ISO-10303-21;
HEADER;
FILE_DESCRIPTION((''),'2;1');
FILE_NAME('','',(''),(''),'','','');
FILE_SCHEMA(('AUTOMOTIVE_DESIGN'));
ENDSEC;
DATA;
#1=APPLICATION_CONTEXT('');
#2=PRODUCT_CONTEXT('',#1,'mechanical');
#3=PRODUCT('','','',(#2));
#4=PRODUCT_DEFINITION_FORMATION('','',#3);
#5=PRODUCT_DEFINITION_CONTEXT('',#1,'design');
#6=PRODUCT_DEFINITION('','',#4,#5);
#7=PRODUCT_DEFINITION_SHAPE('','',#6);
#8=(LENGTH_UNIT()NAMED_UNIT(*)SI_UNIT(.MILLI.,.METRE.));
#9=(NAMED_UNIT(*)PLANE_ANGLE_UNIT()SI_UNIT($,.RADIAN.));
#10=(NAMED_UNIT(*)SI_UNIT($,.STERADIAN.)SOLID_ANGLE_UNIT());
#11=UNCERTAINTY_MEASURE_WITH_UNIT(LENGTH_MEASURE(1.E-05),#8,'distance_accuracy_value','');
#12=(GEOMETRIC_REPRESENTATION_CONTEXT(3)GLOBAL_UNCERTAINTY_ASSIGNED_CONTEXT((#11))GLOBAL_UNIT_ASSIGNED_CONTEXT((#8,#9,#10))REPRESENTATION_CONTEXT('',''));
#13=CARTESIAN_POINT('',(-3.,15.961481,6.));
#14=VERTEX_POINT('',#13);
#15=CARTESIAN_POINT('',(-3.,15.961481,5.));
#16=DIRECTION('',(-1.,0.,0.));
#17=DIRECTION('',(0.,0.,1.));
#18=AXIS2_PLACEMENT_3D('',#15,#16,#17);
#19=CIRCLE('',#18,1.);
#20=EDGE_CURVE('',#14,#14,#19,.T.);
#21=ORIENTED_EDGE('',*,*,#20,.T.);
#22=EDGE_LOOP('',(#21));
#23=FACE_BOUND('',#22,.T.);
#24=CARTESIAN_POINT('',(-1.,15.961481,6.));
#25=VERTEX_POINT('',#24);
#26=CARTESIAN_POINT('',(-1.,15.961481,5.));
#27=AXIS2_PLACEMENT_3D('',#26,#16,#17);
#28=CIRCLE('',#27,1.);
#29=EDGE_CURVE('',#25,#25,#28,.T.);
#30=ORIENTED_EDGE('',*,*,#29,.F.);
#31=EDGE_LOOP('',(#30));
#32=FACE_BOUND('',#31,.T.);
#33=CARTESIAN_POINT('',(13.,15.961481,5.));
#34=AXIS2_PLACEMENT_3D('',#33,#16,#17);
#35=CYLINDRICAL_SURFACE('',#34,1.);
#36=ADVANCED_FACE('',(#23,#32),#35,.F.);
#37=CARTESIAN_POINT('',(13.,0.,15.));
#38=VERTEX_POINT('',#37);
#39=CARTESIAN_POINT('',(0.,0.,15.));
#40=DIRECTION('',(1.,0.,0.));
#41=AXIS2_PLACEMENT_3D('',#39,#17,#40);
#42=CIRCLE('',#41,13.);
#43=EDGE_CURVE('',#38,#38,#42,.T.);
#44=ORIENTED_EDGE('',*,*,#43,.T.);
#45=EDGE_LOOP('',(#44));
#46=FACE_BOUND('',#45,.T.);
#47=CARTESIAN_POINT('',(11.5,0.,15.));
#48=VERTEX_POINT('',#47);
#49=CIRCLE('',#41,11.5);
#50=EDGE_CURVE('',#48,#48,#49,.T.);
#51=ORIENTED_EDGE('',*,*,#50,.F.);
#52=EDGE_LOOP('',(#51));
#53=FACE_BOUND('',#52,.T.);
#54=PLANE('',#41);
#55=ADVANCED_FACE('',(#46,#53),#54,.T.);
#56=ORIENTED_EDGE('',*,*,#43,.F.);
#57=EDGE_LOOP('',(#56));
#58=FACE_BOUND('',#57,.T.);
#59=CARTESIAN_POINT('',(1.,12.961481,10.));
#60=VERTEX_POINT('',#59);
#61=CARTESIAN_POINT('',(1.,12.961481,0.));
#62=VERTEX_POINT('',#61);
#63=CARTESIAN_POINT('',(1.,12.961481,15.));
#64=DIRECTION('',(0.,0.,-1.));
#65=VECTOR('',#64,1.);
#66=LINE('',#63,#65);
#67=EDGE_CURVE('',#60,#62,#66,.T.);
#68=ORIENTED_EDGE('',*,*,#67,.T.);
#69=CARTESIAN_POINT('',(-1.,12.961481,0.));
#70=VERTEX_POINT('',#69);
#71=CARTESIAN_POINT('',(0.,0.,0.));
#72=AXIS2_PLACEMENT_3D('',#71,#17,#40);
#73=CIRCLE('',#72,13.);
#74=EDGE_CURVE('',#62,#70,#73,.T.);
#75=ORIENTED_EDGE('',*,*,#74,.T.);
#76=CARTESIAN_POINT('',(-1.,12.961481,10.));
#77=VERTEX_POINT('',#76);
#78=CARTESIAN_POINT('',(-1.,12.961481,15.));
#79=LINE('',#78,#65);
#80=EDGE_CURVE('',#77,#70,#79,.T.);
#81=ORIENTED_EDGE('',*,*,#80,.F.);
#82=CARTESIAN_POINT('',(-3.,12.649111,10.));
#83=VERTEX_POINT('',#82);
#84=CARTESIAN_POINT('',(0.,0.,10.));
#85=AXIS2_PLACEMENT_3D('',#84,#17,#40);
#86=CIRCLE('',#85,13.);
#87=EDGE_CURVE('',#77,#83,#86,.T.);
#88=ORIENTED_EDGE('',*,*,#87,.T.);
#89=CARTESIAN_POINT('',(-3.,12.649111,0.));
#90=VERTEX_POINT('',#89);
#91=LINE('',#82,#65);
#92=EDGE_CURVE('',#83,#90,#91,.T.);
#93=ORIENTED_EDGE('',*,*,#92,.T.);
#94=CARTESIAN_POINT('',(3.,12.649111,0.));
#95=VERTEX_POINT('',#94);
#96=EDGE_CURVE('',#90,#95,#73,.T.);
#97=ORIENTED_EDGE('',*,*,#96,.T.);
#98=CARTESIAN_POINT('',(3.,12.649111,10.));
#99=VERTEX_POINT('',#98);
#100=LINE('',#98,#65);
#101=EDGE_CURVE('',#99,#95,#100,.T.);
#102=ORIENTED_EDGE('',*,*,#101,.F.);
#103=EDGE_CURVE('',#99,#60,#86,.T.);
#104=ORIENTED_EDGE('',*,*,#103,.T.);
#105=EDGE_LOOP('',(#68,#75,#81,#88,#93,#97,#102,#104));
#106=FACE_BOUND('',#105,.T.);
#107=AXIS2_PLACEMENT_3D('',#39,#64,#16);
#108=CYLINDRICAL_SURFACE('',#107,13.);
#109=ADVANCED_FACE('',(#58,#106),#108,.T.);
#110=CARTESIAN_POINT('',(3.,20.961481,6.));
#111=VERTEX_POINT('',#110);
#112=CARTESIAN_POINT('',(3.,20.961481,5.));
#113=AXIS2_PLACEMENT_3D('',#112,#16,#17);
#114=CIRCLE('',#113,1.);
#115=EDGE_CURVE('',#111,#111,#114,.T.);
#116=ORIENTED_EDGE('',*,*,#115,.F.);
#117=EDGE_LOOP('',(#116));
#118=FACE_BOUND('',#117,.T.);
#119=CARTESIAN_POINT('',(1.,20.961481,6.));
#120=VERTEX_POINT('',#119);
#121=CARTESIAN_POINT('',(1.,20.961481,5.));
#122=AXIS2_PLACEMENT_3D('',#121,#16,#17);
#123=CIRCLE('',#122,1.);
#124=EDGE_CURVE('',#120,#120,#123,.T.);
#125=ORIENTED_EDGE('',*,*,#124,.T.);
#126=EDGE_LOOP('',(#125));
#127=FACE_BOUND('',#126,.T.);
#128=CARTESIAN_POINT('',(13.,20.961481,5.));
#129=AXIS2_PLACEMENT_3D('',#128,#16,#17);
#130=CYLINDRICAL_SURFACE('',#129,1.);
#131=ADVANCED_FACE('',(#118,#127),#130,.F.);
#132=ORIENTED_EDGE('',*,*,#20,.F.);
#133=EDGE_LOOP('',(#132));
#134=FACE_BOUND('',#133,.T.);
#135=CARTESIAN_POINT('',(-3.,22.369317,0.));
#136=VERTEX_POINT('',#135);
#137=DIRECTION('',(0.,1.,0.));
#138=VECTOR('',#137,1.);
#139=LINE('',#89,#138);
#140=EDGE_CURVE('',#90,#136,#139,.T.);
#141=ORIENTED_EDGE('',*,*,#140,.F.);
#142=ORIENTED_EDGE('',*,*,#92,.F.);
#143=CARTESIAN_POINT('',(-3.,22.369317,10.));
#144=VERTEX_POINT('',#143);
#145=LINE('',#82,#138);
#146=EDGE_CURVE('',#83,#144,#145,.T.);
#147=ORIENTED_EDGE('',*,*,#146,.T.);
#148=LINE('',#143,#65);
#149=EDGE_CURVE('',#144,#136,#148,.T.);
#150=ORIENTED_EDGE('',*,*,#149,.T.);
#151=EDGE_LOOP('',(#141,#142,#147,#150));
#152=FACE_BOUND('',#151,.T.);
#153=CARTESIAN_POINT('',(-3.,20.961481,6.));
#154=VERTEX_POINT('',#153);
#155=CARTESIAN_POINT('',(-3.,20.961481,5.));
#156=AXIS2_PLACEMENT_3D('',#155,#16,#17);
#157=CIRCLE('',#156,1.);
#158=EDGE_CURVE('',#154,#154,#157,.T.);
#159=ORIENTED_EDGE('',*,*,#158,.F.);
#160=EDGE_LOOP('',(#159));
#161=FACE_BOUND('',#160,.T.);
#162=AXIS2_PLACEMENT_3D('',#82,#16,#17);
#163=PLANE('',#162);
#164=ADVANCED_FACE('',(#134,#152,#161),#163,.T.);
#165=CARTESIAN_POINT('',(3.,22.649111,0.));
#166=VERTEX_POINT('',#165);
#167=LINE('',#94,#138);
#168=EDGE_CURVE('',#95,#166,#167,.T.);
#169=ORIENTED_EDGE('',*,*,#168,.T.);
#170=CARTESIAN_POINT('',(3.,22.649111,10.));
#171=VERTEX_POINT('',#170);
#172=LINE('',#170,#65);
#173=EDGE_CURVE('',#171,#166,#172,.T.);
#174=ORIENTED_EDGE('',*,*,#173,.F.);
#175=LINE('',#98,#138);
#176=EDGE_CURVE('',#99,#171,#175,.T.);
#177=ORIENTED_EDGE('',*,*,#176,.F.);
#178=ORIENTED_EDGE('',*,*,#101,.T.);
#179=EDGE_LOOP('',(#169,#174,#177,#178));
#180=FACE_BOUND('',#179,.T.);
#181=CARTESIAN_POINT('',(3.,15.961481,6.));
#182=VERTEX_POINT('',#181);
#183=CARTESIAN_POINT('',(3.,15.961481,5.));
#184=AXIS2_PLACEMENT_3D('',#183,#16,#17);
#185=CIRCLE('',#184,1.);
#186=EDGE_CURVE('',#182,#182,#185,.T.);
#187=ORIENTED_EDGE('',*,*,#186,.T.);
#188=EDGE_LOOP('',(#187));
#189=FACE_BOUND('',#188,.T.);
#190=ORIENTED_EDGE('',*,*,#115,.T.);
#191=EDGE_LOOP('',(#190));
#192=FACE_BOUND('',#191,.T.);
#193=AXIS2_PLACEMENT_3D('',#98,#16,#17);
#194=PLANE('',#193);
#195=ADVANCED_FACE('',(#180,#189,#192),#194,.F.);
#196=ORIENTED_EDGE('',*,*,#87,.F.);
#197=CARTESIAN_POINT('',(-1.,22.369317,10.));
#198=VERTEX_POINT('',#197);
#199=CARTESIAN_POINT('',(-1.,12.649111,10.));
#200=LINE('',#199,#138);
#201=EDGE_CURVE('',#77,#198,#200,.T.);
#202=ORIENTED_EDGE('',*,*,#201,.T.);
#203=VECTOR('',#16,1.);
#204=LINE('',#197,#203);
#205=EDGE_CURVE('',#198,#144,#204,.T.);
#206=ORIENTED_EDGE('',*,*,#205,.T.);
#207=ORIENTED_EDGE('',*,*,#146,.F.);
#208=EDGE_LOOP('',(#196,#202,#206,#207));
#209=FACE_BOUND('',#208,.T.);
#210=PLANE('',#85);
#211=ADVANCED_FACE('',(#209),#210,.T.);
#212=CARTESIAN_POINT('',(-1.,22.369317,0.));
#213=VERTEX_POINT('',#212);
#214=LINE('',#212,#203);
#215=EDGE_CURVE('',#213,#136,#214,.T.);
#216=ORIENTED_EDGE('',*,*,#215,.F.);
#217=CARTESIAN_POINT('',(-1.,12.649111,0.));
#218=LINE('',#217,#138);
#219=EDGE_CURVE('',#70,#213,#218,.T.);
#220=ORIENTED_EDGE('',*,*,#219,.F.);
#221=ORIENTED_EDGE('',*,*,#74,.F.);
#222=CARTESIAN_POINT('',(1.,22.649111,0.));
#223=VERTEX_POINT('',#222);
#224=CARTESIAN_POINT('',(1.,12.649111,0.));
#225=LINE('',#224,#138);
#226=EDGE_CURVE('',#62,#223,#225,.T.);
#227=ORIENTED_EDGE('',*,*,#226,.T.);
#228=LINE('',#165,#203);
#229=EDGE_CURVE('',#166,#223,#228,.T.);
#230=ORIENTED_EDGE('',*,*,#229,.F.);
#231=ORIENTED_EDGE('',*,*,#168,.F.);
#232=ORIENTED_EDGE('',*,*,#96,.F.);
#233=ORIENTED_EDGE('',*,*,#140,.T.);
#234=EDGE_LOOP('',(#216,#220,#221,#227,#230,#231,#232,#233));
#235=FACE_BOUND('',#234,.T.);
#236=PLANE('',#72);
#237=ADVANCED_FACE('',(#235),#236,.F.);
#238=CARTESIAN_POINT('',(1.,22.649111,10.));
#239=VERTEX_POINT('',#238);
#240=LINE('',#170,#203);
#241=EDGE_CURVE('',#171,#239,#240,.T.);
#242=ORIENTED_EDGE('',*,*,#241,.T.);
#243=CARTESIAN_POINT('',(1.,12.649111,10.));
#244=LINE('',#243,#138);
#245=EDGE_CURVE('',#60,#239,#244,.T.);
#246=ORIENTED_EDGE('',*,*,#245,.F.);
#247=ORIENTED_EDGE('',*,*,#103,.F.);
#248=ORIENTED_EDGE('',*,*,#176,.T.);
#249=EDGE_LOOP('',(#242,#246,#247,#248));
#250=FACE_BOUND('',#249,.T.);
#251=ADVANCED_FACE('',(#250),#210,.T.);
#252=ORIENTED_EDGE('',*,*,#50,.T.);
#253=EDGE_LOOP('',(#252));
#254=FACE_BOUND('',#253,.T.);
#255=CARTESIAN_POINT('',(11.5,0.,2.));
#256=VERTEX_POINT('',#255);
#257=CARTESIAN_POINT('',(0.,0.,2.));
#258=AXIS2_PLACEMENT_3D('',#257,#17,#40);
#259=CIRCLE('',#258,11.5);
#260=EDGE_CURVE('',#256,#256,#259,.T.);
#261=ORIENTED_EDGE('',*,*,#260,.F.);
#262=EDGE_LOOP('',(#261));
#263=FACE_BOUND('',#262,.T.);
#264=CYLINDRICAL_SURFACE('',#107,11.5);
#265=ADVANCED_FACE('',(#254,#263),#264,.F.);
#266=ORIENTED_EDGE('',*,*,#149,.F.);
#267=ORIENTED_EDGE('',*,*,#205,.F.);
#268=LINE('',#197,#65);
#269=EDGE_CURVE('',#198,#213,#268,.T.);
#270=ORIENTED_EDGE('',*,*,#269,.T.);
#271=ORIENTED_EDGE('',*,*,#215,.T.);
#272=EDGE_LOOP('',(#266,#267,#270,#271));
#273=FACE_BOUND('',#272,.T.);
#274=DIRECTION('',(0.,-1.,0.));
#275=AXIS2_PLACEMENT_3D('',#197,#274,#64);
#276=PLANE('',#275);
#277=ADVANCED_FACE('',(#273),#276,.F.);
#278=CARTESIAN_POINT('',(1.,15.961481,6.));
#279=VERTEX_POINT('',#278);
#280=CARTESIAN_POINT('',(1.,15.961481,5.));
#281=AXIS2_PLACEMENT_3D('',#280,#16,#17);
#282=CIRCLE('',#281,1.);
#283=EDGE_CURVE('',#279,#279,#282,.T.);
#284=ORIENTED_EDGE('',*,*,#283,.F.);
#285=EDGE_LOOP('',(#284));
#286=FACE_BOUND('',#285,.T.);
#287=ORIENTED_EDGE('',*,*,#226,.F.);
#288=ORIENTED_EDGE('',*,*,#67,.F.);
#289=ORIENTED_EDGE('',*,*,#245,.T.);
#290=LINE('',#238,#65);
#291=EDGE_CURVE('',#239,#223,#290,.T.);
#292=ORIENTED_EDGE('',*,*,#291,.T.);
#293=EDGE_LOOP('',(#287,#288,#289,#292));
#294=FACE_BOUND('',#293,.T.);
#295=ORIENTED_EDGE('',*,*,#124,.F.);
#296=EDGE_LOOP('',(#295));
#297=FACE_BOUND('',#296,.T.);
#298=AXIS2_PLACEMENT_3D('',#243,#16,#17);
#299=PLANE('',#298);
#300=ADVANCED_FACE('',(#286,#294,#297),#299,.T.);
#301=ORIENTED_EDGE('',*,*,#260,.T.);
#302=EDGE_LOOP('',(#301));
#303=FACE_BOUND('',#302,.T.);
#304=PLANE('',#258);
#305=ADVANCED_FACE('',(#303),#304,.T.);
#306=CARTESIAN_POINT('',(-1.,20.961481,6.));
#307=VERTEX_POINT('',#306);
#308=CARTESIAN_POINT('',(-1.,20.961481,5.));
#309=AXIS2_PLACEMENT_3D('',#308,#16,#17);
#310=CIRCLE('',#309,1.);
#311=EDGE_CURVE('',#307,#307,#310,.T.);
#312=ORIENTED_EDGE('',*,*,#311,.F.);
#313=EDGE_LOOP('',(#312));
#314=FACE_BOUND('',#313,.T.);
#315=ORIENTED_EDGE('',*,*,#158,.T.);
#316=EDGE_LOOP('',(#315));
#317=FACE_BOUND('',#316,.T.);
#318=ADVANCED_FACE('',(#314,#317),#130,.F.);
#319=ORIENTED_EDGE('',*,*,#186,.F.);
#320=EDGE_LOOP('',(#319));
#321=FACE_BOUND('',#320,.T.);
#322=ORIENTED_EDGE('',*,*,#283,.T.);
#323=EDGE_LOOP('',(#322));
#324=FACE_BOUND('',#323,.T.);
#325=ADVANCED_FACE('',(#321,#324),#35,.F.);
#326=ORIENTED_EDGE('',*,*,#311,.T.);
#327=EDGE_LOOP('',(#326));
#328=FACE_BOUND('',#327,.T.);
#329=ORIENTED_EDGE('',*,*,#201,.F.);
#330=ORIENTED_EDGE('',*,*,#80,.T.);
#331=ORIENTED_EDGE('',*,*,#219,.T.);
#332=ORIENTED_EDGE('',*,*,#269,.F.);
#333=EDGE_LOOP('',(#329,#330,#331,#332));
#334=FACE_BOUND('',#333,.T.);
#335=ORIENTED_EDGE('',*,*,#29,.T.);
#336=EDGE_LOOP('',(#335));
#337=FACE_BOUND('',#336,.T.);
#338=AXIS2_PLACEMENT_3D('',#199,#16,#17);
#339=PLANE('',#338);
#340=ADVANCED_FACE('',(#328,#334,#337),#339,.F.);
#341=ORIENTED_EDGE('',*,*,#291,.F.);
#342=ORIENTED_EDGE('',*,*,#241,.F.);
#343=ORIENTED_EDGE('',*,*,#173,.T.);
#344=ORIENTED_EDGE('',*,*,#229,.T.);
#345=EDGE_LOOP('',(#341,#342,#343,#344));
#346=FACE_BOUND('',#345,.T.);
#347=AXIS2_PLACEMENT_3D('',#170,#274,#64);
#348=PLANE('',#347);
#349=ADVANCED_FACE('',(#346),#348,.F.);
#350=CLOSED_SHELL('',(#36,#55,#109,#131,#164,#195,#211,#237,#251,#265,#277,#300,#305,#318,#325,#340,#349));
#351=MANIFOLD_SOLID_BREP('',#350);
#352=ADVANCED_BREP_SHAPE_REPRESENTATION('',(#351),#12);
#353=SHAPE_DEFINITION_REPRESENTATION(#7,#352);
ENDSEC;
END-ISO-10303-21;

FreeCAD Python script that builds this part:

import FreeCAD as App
import Part
import Sketcher
Q = App.Units.Quantity

doc = App.newDocument("Part")
body = doc.addObject("PartDesign::Body", "Body")

# Sketch on XY plane
sketch1 = body.newObject("Sketcher::SketchObject", "Sketch")
sketch1.AttachmentSupport = (doc.getObject("XY_Plane"), [""])
sketch1.MapMode = "FlatFace"
sketch1.addGeometry(Part.Circle(App.Vector(0, 0, 0), App.Vector(0, 0, 1), 13), False)
sketch1.addGeometry(Part.Circle(App.Vector(0, 0, 0), App.Vector(0, 0, 1), 12), False)
sketch1.addConstraint(Sketcher.Constraint("Coincident", 0, 3, -1, 1))
sketch1.addConstraint(Sketcher.Constraint("Coincident", 1, 3, -1, 1))
sketch1.addConstraint(Sketcher.Constraint("Diameter", 0, Q("26 mm")))
sketch1.addConstraint(Sketcher.Constraint("Diameter", 1, Q("23 mm")))
pad1 = body.newObject("PartDesign::Pad", "Pad")
pad1.Profile = sketch1
pad1.Length = 15

# Sketch on XY plane
sketch2 = body.newObject("Sketcher::SketchObject", "Sketch001")
sketch2.AttachmentSupport = (doc.getObject("XY_Plane"), [""])
sketch2.MapMode = "FlatFace"
sketch2.addGeometry(Part.Circle(App.Vector(0, 0, 0), App.Vector(0, 0, 1), 13), False)
sketch2.addConstraint(Sketcher.Constraint("Coincident", 0, 3, -1, 1))
sketch2.addConstraint(Sketcher.Constraint("Diameter", 0, Q("26 mm")))
pad2 = body.newObject("PartDesign::Pad", "Pad001")
pad2.Profile = sketch2
pad2.Length = 2

# Sketch on XY plane
sketch3 = body.newObject("Sketcher::SketchObject", "Sketch002")
sketch3.AttachmentSupport = (doc.getObject("XY_Plane"), [""])
sketch3.MapMode = "FlatFace"
sketch3.addGeometry(Part.LineSegment(App.Vector(3, 22.6, 0), App.Vector(3, 12.6, 0)), False)
sketch3.addGeometry(Part.LineSegment(App.Vector(3, 12.6, 0), App.Vector(1, 12.6, 0)), False)
sketch3.addGeometry(Part.LineSegment(App.Vector(1, 12.6, 0), App.Vector(1, 22.6, 0)), False)
sketch3.addGeometry(Part.LineSegment(App.Vector(1, 22.6, 0), App.Vector(3, 22.6, 0)), False)
sketch3.addConstraint(Sketcher.Constraint("Coincident", 0, 2, 1, 1))
sketch3.addConstraint(Sketcher.Constraint("Coincident", 1, 2, 2, 1))
sketch3.addConstraint(Sketcher.Constraint("Coincident", 2, 2, 3, 1))
sketch3.addConstraint(Sketcher.Constraint("Coincident", 3, 2, 0, 1))
sketch3.addConstraint(Sketcher.Constraint("Vertical", 0))
sketch3.addConstraint(Sketcher.Constraint("Horizontal", 1))
sketch3.addConstraint(Sketcher.Constraint("Vertical", 2))
sketch3.addConstraint(Sketcher.Constraint("Horizontal", 3))
sketch3.addConstraint(Sketcher.Constraint("DistanceX", 1, 2, 1, 1, Q("2 mm")))
sketch3.addConstraint(Sketcher.Constraint("DistanceY", 0, 2, 0, 1, Q("10 mm")))
sketch3.addConstraint(Sketcher.Constraint("DistanceX", -1, 1, 0, 2, Q("3 mm")))
sketch3.addConstraint(Sketcher.Constraint("DistanceY", -1, 1, 0, 2, Q("12.649111 mm")))
pad3 = body.newObject("PartDesign::Pad", "Pad002")
pad3.Profile = sketch3
pad3.Length = 10

# Sketch on XY plane
sketch4 = body.newObject("Sketcher::SketchObject", "Sketch003")
sketch4.AttachmentSupport = (doc.getObject("XY_Plane"), [""])
sketch4.MapMode = "FlatFace"
sketch4.addGeometry(Part.LineSegment(App.Vector(-1, 22.4, 0), App.Vector(-1, 12.6, 0)), False)
sketch4.addGeometry(Part.LineSegment(App.Vector(-1, 12.6, 0), App.Vector(-3, 12.6, 0)), False)
sketch4.addGeometry(Part.LineSegment(App.Vector(-3, 12.6, 0), App.Vector(-3, 22.4, 0)), False)
sketch4.addGeometry(Part.LineSegment(App.Vector(-3, 22.4, 0), App.Vector(-1, 22.4, 0)), False)
sketch4.addConstraint(Sketcher.Constraint("Coincident", 0, 2, 1, 1))
sketch4.addConstraint(Sketcher.Constraint("Coincident", 1, 2, 2, 1))
sketch4.addConstraint(Sketcher.Constraint("Coincident", 2, 2, 3, 1))
sketch4.addConstraint(Sketcher.Constraint("Coincident", 3, 2, 0, 1))
sketch4.addConstraint(Sketcher.Constraint("Vertical", 0))
sketch4.addConstraint(Sketcher.Constraint("Horizontal", 1))
sketch4.addConstraint(Sketcher.Constraint("Vertical", 2))
sketch4.addConstraint(Sketcher.Constraint("Horizontal", 3))
sketch4.addConstraint(Sketcher.Constraint("DistanceX", 1, 2, 1, 1, Q("2 mm")))
sketch4.addConstraint(Sketcher.Constraint("DistanceX", 0, 2, -1, 1, Q("1 mm")))
sketch4.addConstraint(Sketcher.Constraint("DistanceY", 0, 2, 0, 1, Q("9.720206 mm")))
sketch4.addConstraint(Sketcher.Constraint("DistanceY", -1, 1, 0, 2, Q("12.649111 mm")))
pad4 = body.newObject("PartDesign::Pad", "Pad003")
pad4.Profile = sketch4
pad4.Length = 10

# Sketch on YZ plane
sketch5 = body.newObject("Sketcher::SketchObject", "Sketch004")
sketch5.AttachmentSupport = (doc.getObject("YZ_Plane"), [""])
sketch5.MapMode = "FlatFace"
sketch5.AttachmentOffset = App.Placement(App.Vector(0, 0, -3), App.Rotation())
sketch5.addGeometry(Part.Circle(App.Vector(16, 5, 0), App.Vector(0, 0, 1), 1), False)
sketch5.addGeometry(Part.Circle(App.Vector(21, 5, 0), App.Vector(0, 0, 1), 1), False)
sketch5.addConstraint(Sketcher.Constraint("Equal", 0, 1))
sketch5.addConstraint(Sketcher.Constraint("Horizontal", 0, 3, 1, 3))
sketch5.addConstraint(Sketcher.Constraint("Diameter", 0, Q("2 mm")))
sketch5.addConstraint(Sketcher.Constraint("DistanceY", -1, 1, 0, 3, Q("5 mm")))
sketch5.addConstraint(Sketcher.Constraint("DistanceX", 0, 3, 1, 3, Q("5 mm")))
sketch5.addConstraint(Sketcher.Constraint("DistanceX", -1, 1, 0, 3, Q("15.961481 mm")))
pocket1 = body.newObject("PartDesign::Pocket", "Pocket")
pocket1.Profile = sketch5
pocket1.Type = "ThroughAll"
pocket1.Midplane = True

doc.recompute()
